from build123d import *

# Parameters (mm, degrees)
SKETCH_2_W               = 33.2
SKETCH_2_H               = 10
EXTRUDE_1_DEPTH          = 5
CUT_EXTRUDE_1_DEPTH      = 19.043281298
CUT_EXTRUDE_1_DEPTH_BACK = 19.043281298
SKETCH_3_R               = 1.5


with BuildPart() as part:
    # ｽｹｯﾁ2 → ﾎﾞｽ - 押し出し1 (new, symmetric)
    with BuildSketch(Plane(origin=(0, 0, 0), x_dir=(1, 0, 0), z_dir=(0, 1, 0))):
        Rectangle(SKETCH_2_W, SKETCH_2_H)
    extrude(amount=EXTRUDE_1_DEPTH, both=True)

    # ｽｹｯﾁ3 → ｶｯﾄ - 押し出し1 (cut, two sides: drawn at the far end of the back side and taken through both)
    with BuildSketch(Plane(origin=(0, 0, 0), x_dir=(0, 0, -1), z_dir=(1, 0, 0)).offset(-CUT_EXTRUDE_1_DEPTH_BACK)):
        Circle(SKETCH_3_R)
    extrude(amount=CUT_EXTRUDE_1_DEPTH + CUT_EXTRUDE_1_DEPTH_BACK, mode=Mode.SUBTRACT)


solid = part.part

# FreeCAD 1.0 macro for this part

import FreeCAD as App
import Part
import Sketcher
Q = App.Units.Quantity

doc = App.newDocument("Part")
body = doc.addObject("PartDesign::Body", "Body")

sketch1 = body.newObject("Sketcher::SketchObject", "Sketch")
sketch1.AttachmentSupport = (doc.getObject("XZ_Plane"), [""])
sketch1.MapMode = "FlatFace"
sketch1.addGeometry(Part.LineSegment(App.Vector(-16.6, -5, 0), App.Vector(-16.6, 5, 0)), False)
sketch1.addGeometry(Part.LineSegment(App.Vector(-16.6, 5, 0), App.Vector(16.6, 5, 0)), False)
sketch1.addGeometry(Part.LineSegment(App.Vector(16.6, 5, 0), App.Vector(16.6, -5, 0)), False)
sketch1.addGeometry(Part.LineSegment(App.Vector(16.6, -5, 0), App.Vector(-16.6, -5, 0)), False)
sketch1.addConstraint(Sketcher.Constraint("Coincident", 0, 2, 1, 1))
sketch1.addConstraint(Sketcher.Constraint("Coincident", 1, 2, 2, 1))
sketch1.addConstraint(Sketcher.Constraint("Coincident", 2, 2, 3, 1))
sketch1.addConstraint(Sketcher.Constraint("Coincident", 3, 2, 0, 1))
sketch1.addConstraint(Sketcher.Constraint("Vertical", 0))
sketch1.addConstraint(Sketcher.Constraint("Horizontal", 1))
sketch1.addConstraint(Sketcher.Constraint("Vertical", 2))
sketch1.addConstraint(Sketcher.Constraint("Horizontal", 3))
sketch1.addConstraint(Sketcher.Constraint("Symmetric", 0, 2, 2, 2, -1, 1))
sketch1.addConstraint(Sketcher.Constraint("DistanceY", 0, 1, 0, 2, Q("10 mm")))
sketch1.addConstraint(Sketcher.Constraint("DistanceX", 1, 1, 1, 2, Q("33.2 mm")))
pad1 = body.newObject("PartDesign::Pad", "Pad")
pad1.Profile = sketch1
pad1.Length = 10
pad1.Midplane = True

sketch2 = body.newObject("Sketcher::SketchObject", "Sketch001")
sketch2.AttachmentSupport = (doc.getObject("YZ_Plane"), [""])
sketch2.MapMode = "FlatFace"
sketch2.addGeometry(Part.Circle(App.Vector(0, 0, 0), App.Vector(0, 0, 1), 1.5), False)
sketch2.addConstraint(Sketcher.Constraint("Coincident", 0, 3, -1, 1))
sketch2.addConstraint(Sketcher.Constraint("Diameter", 0, Q("3 mm")))
pocket1 = body.newObject("PartDesign::Pocket", "Pocket")
pocket1.Profile = sketch2
pocket1.Type = "ThroughAll"
pocket1.Midplane = True

doc.recompute()
